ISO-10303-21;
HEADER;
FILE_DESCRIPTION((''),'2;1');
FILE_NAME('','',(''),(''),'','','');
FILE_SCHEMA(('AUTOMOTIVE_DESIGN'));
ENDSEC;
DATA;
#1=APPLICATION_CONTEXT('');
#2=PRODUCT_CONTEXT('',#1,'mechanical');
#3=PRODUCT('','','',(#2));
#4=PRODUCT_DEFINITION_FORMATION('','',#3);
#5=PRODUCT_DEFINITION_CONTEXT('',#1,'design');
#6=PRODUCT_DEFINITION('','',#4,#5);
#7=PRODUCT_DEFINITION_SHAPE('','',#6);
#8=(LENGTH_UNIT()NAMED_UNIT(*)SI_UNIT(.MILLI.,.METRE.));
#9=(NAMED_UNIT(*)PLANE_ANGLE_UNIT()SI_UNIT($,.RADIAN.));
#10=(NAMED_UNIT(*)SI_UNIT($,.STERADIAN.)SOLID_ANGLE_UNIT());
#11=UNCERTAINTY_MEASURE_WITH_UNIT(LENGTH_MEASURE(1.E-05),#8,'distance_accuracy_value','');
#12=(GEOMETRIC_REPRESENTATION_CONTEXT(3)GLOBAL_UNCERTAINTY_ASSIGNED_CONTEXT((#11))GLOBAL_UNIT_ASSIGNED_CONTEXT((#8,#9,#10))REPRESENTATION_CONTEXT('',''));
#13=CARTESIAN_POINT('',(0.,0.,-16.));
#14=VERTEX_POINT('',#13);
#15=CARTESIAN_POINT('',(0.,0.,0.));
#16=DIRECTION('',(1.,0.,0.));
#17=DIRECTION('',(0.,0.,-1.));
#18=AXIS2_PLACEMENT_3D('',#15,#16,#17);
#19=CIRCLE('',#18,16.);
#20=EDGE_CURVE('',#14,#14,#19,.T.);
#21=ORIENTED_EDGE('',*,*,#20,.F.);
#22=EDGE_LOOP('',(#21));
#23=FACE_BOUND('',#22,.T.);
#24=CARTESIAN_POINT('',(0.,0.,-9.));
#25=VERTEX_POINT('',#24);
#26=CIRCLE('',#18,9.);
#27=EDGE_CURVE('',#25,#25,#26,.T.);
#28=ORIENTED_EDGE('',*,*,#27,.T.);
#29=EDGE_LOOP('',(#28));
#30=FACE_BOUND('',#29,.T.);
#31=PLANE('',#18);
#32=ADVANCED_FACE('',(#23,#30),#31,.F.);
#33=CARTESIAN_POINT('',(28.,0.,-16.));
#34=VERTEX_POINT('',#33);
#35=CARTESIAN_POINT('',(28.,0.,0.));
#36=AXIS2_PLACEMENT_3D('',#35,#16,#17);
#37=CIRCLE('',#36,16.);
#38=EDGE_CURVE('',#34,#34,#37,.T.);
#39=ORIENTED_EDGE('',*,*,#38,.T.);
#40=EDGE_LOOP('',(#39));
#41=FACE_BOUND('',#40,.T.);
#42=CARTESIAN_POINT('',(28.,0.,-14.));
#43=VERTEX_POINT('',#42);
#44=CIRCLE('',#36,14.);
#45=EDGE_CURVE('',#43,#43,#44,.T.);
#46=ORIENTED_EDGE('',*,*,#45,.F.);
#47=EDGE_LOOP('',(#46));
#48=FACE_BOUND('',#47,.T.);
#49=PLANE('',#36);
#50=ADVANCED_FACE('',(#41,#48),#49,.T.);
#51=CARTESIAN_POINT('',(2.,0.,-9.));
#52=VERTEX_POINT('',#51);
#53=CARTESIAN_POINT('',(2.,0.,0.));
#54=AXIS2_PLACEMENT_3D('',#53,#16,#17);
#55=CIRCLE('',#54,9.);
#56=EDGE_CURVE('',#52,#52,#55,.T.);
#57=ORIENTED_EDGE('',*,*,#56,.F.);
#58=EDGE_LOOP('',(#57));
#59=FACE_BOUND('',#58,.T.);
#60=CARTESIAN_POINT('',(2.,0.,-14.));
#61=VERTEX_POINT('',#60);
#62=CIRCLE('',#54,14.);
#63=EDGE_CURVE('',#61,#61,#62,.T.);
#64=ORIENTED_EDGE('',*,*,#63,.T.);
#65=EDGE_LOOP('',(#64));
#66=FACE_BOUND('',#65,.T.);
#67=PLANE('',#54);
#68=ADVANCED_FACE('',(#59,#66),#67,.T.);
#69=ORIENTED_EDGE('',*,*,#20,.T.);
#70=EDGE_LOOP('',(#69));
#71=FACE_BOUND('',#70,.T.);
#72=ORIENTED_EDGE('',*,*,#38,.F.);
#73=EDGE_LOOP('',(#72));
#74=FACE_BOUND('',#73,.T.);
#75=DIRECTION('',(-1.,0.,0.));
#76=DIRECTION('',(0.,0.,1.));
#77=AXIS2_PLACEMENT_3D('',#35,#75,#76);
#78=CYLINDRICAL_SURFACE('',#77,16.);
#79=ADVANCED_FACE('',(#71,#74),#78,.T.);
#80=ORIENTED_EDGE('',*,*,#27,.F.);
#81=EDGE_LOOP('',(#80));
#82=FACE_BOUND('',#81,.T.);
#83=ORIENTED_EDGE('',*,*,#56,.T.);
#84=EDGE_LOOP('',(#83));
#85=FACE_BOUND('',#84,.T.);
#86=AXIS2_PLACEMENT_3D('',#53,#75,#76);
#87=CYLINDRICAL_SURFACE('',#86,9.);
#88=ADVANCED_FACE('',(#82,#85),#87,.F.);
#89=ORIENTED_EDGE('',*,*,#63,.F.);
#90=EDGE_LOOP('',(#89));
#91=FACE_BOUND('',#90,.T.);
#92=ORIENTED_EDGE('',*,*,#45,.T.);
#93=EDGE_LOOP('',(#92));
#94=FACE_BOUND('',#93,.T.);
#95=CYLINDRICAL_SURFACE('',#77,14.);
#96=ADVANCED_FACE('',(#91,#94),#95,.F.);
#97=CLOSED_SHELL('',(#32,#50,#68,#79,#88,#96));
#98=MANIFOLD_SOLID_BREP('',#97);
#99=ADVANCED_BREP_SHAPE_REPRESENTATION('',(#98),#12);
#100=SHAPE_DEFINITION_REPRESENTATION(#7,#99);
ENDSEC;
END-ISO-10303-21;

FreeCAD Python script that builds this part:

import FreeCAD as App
import Part
import Sketcher
Q = App.Units.Quantity

doc = App.newDocument("Part")
params = doc.addObject("Spreadsheet::Sheet", "Params")
for row, (alias, value) in enumerate([
    ("sketch1_diameter", "32 mm"),
    ("sketch1_diameter2", "28 mm"),
    ("pad1_length", "28 mm"),
    ("sketch2_diameter", "28 mm"),
    ("sketch2_diameter2", "18 mm"),
    ("pad2_length", "2 mm"),
], start=1):
    params.set(f"A{row}", alias)
    params.set(f"B{row}", "=" + value)
    params.setAlias(f"B{row}", alias)

body = doc.addObject("PartDesign::Body", "Body")

sketch1 = body.newObject("Sketcher::SketchObject", "Sketch")
sketch1.AttachmentSupport = (doc.getObject("YZ_Plane"), [""])
sketch1.MapMode = "FlatFace"
sketch1.addGeometry([
    Part.Circle(App.Vector(0, 0, 0), App.Vector(0, 0, 1), 16),
    Part.Circle(App.Vector(0, 0, 0), App.Vector(0, 0, 1), 14),
], False)
sketch1.addConstraint([
    Sketcher.Constraint("Coincident", 0, 3, -1, 1),
    Sketcher.Constraint("Coincident", 1, 3, -1, 1),
    Sketcher.Constraint("Diameter", 0, Q("32 mm")),
    Sketcher.Constraint("Diameter", 1, Q("28 mm")),
])
sketch1.setExpression("Constraints[2]", "Params.sketch1_diameter")
sketch1.setExpression("Constraints[3]", "Params.sketch1_diameter2")
pad1 = body.newObject("PartDesign::Pad", "Pad")
pad1.Profile = sketch1
pad1.setExpression("Length", "Params.pad1_length")

sketch2 = body.newObject("Sketcher::SketchObject", "Sketch001")
sketch2.AttachmentSupport = (doc.getObject("YZ_Plane"), [""])
sketch2.MapMode = "FlatFace"
sketch2.addGeometry([
    Part.Circle(App.Vector(0, 0, 0), App.Vector(0, 0, 1), 14),
    Part.Circle(App.Vector(0, 0, 0), App.Vector(0, 0, 1), 9),
], False)
sketch2.addConstraint([
    Sketcher.Constraint("Coincident", 0, 3, -1, 1),
    Sketcher.Constraint("Coincident", 1, 3, -1, 1),
    Sketcher.Constraint("Diameter", 0, Q("28 mm")),
    Sketcher.Constraint("Diameter", 1, Q("18 mm")),
])
sketch2.setExpression("Constraints[2]", "Params.sketch2_diameter")
sketch2.setExpression("Constraints[3]", "Params.sketch2_diameter2")
pad2 = body.newObject("PartDesign::Pad", "Pad001")
pad2.Profile = sketch2
pad2.setExpression("Length", "Params.pad2_length")

doc.recompute()
